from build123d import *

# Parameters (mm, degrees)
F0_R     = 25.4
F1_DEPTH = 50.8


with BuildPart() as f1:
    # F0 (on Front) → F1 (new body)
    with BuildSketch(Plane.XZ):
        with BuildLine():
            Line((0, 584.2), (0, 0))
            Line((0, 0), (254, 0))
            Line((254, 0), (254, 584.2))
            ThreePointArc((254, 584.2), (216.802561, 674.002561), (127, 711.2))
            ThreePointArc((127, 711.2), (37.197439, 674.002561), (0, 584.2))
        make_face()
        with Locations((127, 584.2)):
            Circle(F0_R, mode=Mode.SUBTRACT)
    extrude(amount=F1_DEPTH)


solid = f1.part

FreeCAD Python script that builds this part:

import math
import FreeCAD as App
import Part
import Sketcher
from FreeCAD import Vector
Q = App.Units.Quantity

doc = App.newDocument("Part")
body = doc.addObject("PartDesign::Body", "Body")

# Sketch on XZ plane
sketch1 = body.newObject("Sketcher::SketchObject", "Sketch")
sketch1.AttachmentSupport = (doc.getObject("XZ_Plane"), [""])
sketch1.MapMode = "FlatFace"
sketch1.addGeometry(Part.LineSegment(Vector(0, 584.2, 0), Vector(0, 0, 0)), False)
sketch1.addGeometry(Part.LineSegment(Vector(0, 0, 0), Vector(254, 0, 0)), False)
sketch1.addGeometry(Part.LineSegment(Vector(254, 0, 0), Vector(254, 584.2, 0)), False)
sketch1.addGeometry(Part.ArcOfCircle(Part.Circle(Vector(126.999999, 584.199999, 0), Vector(0, 0, 1), 127.000001), math.radians(0), math.radians(90)), False)
sketch1.addGeometry(Part.ArcOfCircle(Part.Circle(Vector(127.000001, 584.199999, 0), Vector(0, 0, 1), 127.000001), math.radians(90), math.radians(180)), False)
sketch1.addGeometry(Part.Circle(Vector(127, 584.2, 0), Vector(0, 0, 1), 25.4), False)
sketch1.addConstraint(Sketcher.Constraint("Coincident", 0, 2, 1, 1))
sketch1.addConstraint(Sketcher.Constraint("Coincident", 1, 2, 2, 1))
sketch1.addConstraint(Sketcher.Constraint("Tangent", 2, 2, 3, 1))
sketch1.addConstraint(Sketcher.Constraint("Tangent", 3, 2, 4, 1))
sketch1.addConstraint(Sketcher.Constraint("Tangent", 4, 2, 0, 1))
sketch1.addConstraint(Sketcher.Constraint("Vertical", 0))
sketch1.addConstraint(Sketcher.Constraint("Horizontal", 1))
sketch1.addConstraint(Sketcher.Constraint("Vertical", 2))
sketch1.addConstraint(Sketcher.Constraint("Coincident", 0, 2, -1, 1))
sketch1.addConstraint(Sketcher.Constraint("Coincident", 5, 3, 3, 3))
sketch1.addConstraint(Sketcher.Constraint("Equal", 3, 4))
sketch1.addConstraint(Sketcher.Constraint("Vertical", 5, 3, 3, 2))
sketch1.addConstraint(Sketcher.Constraint("Diameter", 5, Q("2 in")))
sketch1.addConstraint(Sketcher.Constraint("Radius", 3, Q("5 in")))
sketch1.addConstraint(Sketcher.Constraint("DistanceY", 0, 2, 0, 1, Q("23 in")))
pad1 = body.newObject("PartDesign::Pad", "Pad")
pad1.Profile = sketch1
pad1.Length = Q("2 in")

doc.recompute()
